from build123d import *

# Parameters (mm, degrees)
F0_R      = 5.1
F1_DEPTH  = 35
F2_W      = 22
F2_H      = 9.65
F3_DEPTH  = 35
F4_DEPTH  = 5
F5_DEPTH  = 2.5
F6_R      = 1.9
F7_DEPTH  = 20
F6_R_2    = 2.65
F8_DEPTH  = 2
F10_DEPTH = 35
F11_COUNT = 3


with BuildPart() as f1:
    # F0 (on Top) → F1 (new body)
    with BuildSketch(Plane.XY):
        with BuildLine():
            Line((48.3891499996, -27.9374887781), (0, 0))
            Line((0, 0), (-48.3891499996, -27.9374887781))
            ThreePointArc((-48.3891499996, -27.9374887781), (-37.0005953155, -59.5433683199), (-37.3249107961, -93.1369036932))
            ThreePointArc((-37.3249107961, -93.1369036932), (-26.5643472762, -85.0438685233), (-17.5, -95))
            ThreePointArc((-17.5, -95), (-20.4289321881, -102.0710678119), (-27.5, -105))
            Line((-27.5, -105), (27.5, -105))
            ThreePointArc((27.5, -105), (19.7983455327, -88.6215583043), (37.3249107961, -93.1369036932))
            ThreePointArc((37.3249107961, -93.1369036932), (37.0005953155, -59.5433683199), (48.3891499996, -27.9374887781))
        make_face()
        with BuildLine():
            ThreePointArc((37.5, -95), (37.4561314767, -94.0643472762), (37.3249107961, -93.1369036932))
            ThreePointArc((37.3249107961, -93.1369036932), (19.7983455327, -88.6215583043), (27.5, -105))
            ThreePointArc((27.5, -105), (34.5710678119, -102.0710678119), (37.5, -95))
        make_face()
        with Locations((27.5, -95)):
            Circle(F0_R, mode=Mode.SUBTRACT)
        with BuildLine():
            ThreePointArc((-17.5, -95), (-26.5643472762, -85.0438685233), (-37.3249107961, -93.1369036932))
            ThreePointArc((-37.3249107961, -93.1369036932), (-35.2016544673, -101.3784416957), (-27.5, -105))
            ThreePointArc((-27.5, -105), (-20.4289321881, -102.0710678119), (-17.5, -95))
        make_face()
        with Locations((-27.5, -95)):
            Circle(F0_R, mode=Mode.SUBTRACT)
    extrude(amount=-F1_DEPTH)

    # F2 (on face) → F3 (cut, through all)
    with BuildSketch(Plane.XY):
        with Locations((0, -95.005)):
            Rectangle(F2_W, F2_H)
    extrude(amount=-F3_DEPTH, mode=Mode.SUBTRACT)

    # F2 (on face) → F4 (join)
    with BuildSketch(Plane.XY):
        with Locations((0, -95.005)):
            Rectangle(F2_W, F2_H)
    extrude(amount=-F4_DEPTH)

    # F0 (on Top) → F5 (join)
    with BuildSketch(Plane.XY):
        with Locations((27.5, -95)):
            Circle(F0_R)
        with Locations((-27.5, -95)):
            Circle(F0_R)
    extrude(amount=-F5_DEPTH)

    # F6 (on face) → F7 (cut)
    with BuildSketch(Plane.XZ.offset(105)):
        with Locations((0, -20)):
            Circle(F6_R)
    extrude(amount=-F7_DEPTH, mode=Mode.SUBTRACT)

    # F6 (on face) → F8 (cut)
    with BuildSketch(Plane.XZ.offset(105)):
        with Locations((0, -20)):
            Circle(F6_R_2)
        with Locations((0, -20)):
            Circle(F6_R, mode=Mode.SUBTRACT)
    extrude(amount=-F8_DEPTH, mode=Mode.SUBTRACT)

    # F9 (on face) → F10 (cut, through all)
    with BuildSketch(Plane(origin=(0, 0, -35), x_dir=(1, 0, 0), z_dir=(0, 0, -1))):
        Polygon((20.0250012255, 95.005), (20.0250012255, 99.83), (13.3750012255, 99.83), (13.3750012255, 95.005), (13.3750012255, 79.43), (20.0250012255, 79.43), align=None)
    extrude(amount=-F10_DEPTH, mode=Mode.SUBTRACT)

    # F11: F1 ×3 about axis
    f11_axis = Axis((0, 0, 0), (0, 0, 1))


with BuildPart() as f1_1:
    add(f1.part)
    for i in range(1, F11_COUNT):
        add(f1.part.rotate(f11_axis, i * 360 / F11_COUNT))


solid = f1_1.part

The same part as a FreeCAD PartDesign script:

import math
import FreeCAD as App
import Part
import Sketcher

V = App.Vector
Q = App.Units.Quantity


def add_polygon(sketch, points):
    """Adds a closed chain of lines whose ends are joined by coincident constraints."""
    first, n = sketch.GeometryCount, len(points)
    for a, b in zip(points, points[1:] + points[:1]):
        sketch.addGeometry(Part.LineSegment(App.Vector(*a, 0), App.Vector(*b, 0)), False)
    for i in range(n):
        sketch.addConstraint(Sketcher.Constraint("Coincident", first + i, 2, first + (i + 1) % n, 1))

doc = App.newDocument("Part")
body = doc.addObject("PartDesign::Body", "Body")

sketch1 = body.newObject("Sketcher::SketchObject", "Sketch")
sketch1.AttachmentSupport = (doc.getObject("XY_Plane"), [""])
sketch1.MapMode = "FlatFace"
sketch1.addGeometry(Part.LineSegment(V(48.38915, -27.937489, 0), V(0, 0, 0)), False)
sketch1.addGeometry(Part.LineSegment(V(0, 0, 0), V(-48.38915, -27.937489, 0)), False)
sketch1.addGeometry(Part.ArcOfCircle(Part.Circle(V(-130.661563, -75.437489, 0), V(0, 0, 1), 95), math.radians(-10.737496), math.radians(30)), False)
sketch1.addGeometry(Part.ArcOfCircle(Part.Circle(V(-27.5, -95, 0), V(0, 0, 1), 10), math.radians(169.262504), math.radians(270)), False)
sketch1.addGeometry(Part.LineSegment(V(-27.5, -105, 0), V(27.5, -105, 0)), False)
sketch1.addGeometry(Part.ArcOfCircle(Part.Circle(V(27.5, -95, 0), V(0, 0, 1), 10), math.radians(-90), math.radians(0)), False)
sketch1.addGeometry(Part.ArcOfCircle(Part.Circle(V(27.5, -95, 0), V(0, 0, 1), 10), math.radians(0), math.radians(10.737496)), False)
sketch1.addGeometry(Part.ArcOfCircle(Part.Circle(V(130.661563, -75.437489, 0), V(0, 0, 1), 95), math.radians(150), math.radians(190.737496)), False)
sketch1.addGeometry(Part.Circle(V(-27.5, -95, 0), V(0, 0, 1), 5.1), False)
sketch1.addGeometry(Part.Circle(V(27.5, -95, 0), V(0, 0, 1), 5.1), False)
sketch1.addConstraint(Sketcher.Constraint("Coincident", 0, 2, 1, 1))
sketch1.addConstraint(Sketcher.Constraint("Coincident", 1, 2, 2, 2))
sketch1.addConstraint(Sketcher.Constraint("Tangent", 2, 1, 3, 1))
sketch1.addConstraint(Sketcher.Constraint("Tangent", 3, 2, 4, 1))
sketch1.addConstraint(Sketcher.Constraint("Tangent", 4, 2, 5, 1))
sketch1.addConstraint(Sketcher.Constraint("Tangent", 5, 2, 6, 1))
sketch1.addConstraint(Sketcher.Constraint("Tangent", 6, 2, 7, 2))
sketch1.addConstraint(Sketcher.Constraint("Coincident", 7, 1, 0, 1))
sketch1.addConstraint(Sketcher.Constraint("Horizontal", 4))
sketch1.addConstraint(Sketcher.Constraint("Coincident", 0, 2, -1, 1))
sketch1.addConstraint(Sketcher.Constraint("Coincident", 8, 3, 3, 3))
sketch1.addConstraint(Sketcher.Constraint("Coincident", 9, 3, 5, 3))
sketch1.addConstraint(Sketcher.Constraint("Equal", 3, 5))
sketch1.addConstraint(Sketcher.Constraint("Equal", 5, 6))
sketch1.addConstraint(Sketcher.Constraint("Equal", 2, 7))
sketch1.addConstraint(Sketcher.Constraint("Equal", 8, 9))
sketch1.addConstraint(Sketcher.Constraint("Symmetric", 2, 3, 7, 3, -2))
sketch1.addConstraint(Sketcher.Constraint("Horizontal", 9, 3, 5, 2))
sketch1.addConstraint(Sketcher.Constraint("Horizontal", 1, 2, 7, 1))
sketch1.addConstraint(Sketcher.Constraint("Radius", 2, 95.0))
sketch1.addConstraint(Sketcher.Constraint("Radius", 3, 10.0))
sketch1.addConstraint(Sketcher.Constraint("Diameter", 8, 10.2))
sketch1.addConstraint(Sketcher.Constraint("DistanceX", 4, 1, 4, 2, 55.0))
sketch1.addConstraint(Sketcher.Constraint("Angle", 0, Q("150 deg")))
sketch1.addConstraint(Sketcher.Constraint("DistanceY", 3, 3, -1, 1, 95.0))
sketch1.addConstraint(Sketcher.Constraint("DistanceY", 2, 3, 1, 2, 47.5))
pad1 = body.newObject("PartDesign::Pad", "Pad")
pad1.Profile = sketch1
pad1.Length = 35
pad1.Reversed = True

sketch2 = body.newObject("Sketcher::SketchObject", "Sketch001")
sketch2.AttachmentSupport = (doc.getObject("XY_Plane"), [""])
sketch2.MapMode = "FlatFace"
add_polygon(sketch2, [(-11, -90.18), (-11, -99.83), (11, -99.83), (11, -90.18)])
sketch2.addConstraint(Sketcher.Constraint("Vertical", 0))
sketch2.addConstraint(Sketcher.Constraint("Horizontal", 1))
sketch2.addConstraint(Sketcher.Constraint("Vertical", 2))
sketch2.addConstraint(Sketcher.Constraint("Horizontal", 3))
sketch2.addConstraint(Sketcher.Constraint("DistanceX", 1, 1, 1, 2, 22.0))
sketch2.addConstraint(Sketcher.Constraint("DistanceX", 0, 2, -1, 1, 11.0))
sketch2.addConstraint(Sketcher.Constraint("DistanceY", 0, 2, 0, 1, 9.65))
sketch2.addConstraint(Sketcher.Constraint("DistanceY", 0, 2, -1, 1, 99.83))
pocket1 = body.newObject("PartDesign::Pocket", "Pocket")
pocket1.Profile = sketch2
pocket1.Type = "ThroughAll"

sketch3 = body.newObject("Sketcher::SketchObject", "Sketch002")
sketch3.AttachmentSupport = (doc.getObject("XY_Plane"), [""])
sketch3.MapMode = "FlatFace"
add_polygon(sketch3, [(-11, -90.18), (-11, -99.83), (11, -99.83), (11, -90.18)])
sketch3.addConstraint(Sketcher.Constraint("Vertical", 0))
sketch3.addConstraint(Sketcher.Constraint("Horizontal", 1))
sketch3.addConstraint(Sketcher.Constraint("Vertical", 2))
sketch3.addConstraint(Sketcher.Constraint("Horizontal", 3))
sketch3.addConstraint(Sketcher.Constraint("DistanceX", 1, 1, 1, 2, 22.0))
sketch3.addConstraint(Sketcher.Constraint("DistanceX", 0, 2, -1, 1, 11.0))
sketch3.addConstraint(Sketcher.Constraint("DistanceY", 0, 2, 0, 1, 9.65))
sketch3.addConstraint(Sketcher.Constraint("DistanceY", 0, 2, -1, 1, 99.83))
pad2 = body.newObject("PartDesign::Pad", "Pad001")
pad2.Profile = sketch3
pad2.Length = 5
pad2.Reversed = True

sketch4 = body.newObject("Sketcher::SketchObject", "Sketch003")
sketch4.AttachmentSupport = (doc.getObject("XY_Plane"), [""])
sketch4.MapMode = "FlatFace"
sketch4.addGeometry(Part.Circle(V(27.5, -95, 0), V(0, 0, 1), 5.1), False)
sketch4.addGeometry(Part.Circle(V(-27.5, -95, 0), V(0, 0, 1), 5.1), False)
sketch4.addConstraint(Sketcher.Constraint("Equal", 0, 1))
sketch4.addConstraint(Sketcher.Constraint("Symmetric", 0, 3, 1, 3, -2))
sketch4.addConstraint(Sketcher.Constraint("Diameter", 0, 10.2))
sketch4.addConstraint(Sketcher.Constraint("DistanceY", 0, 3, -1, 1, 95.0))
sketch4.addConstraint(Sketcher.Constraint("DistanceX", 1, 3, 0, 3, 55.0))
pad3 = body.newObject("PartDesign::Pad", "Pad002")
pad3.Profile = sketch4
pad3.Length = 2.5
pad3.Reversed = True

sketch5 = body.newObject("Sketcher::SketchObject", "Sketch004")
sketch5.AttachmentSupport = (doc.getObject("XZ_Plane"), [""])
sketch5.MapMode = "FlatFace"
sketch5.AttachmentOffset = App.Placement(V(0, 0, 105), App.Rotation())
sketch5.addGeometry(Part.Circle(V(0, -20, 0), V(0, 0, 1), 1.9), False)
sketch5.addConstraint(Sketcher.Constraint("PointOnObject", 0, 3, -2))
sketch5.addConstraint(Sketcher.Constraint("Diameter", 0, 3.8))
sketch5.addConstraint(Sketcher.Constraint("DistanceY", 0, 3, -1, 1, 20.0))
pocket2 = body.newObject("PartDesign::Pocket", "Pocket001")
pocket2.Profile = sketch5
pocket2.Length = 20

sketch6 = body.newObject("Sketcher::SketchObject", "Sketch005")
sketch6.AttachmentSupport = (doc.getObject("XZ_Plane"), [""])
sketch6.MapMode = "FlatFace"
sketch6.AttachmentOffset = App.Placement(V(0, 0, 105), App.Rotation())
sketch6.addGeometry(Part.Circle(V(0, -20, 0), V(0, 0, 1), 2.65), False)
sketch6.addGeometry(Part.Circle(V(0, -20, 0), V(0, 0, 1), 1.9), False)
sketch6.addConstraint(Sketcher.Constraint("Coincident", 1, 3, 0, 3))
sketch6.addConstraint(Sketcher.Constraint("PointOnObject", 0, 3, -2))
sketch6.addConstraint(Sketcher.Constraint("Diameter", 0, 5.3))
sketch6.addConstraint(Sketcher.Constraint("Diameter", 1, 3.8))
sketch6.addConstraint(Sketcher.Constraint("DistanceY", 0, 3, -1, 1, 20.0))
pocket3 = body.newObject("PartDesign::Pocket", "Pocket002")
pocket3.Profile = sketch6
pocket3.Length = 2

sketch7 = body.newObject("Sketcher::SketchObject", "Sketch006")
sketch7.AttachmentSupport = (doc.getObject("XY_Plane"), [""])
sketch7.MapMode = "FlatFace"
sketch7.AttachmentOffset = App.Placement(V(0, 0, -35), App.Rotation())
add_polygon(sketch7, [(20.025001, -99.83), (13.375001, -99.83), (13.375001, -79.43), (20.025001, -79.43)])
sketch7.addConstraint(Sketcher.Constraint("Horizontal", 0))
sketch7.addConstraint(Sketcher.Constraint("Vertical", 1))
sketch7.addConstraint(Sketcher.Constraint("Horizontal", 2))
sketch7.addConstraint(Sketcher.Constraint("Vertical", 3))
sketch7.addConstraint(Sketcher.Constraint("DistanceY", 1, 1, 1, 2, 20.4))
sketch7.addConstraint(Sketcher.Constraint("DistanceX", 0, 2, 0, 1, 6.65))
sketch7.addConstraint(Sketcher.Constraint("DistanceY", 0, 2, -1, 1, 99.83))
sketch7.addConstraint(Sketcher.Constraint("DistanceX", -1, 1, 0, 2, 13.375001))
pocket4 = body.newObject("PartDesign::Pocket", "Pocket003")
pocket4.Profile = sketch7
pocket4.Type = "ThroughAll"
pocket4.Reversed = True
body2 = doc.addObject("PartDesign::Body", "Body001")
doc.recompute()

body2.BaseFeature = body
doc.recompute()

body3 = doc.addObject("PartDesign::Body", "Body002")
body3.BaseFeature = body
body3.Placement = App.Placement(V(0, 0, 0), App.Rotation(V(0, 0, 1), 120))
boolean = body2.newObject("PartDesign::Boolean", "Boolean")
boolean.Type = "Fuse"
boolean.addObjects([body3])
doc.recompute()

body.Placement = App.Placement(V(0, 0, 0), App.Rotation(V(0, 0, 1), 240))
boolean2 = body2.newObject("PartDesign::Boolean", "Boolean001")
boolean2.Type = "Fuse"
boolean2.addObjects([body])

doc.recompute()
